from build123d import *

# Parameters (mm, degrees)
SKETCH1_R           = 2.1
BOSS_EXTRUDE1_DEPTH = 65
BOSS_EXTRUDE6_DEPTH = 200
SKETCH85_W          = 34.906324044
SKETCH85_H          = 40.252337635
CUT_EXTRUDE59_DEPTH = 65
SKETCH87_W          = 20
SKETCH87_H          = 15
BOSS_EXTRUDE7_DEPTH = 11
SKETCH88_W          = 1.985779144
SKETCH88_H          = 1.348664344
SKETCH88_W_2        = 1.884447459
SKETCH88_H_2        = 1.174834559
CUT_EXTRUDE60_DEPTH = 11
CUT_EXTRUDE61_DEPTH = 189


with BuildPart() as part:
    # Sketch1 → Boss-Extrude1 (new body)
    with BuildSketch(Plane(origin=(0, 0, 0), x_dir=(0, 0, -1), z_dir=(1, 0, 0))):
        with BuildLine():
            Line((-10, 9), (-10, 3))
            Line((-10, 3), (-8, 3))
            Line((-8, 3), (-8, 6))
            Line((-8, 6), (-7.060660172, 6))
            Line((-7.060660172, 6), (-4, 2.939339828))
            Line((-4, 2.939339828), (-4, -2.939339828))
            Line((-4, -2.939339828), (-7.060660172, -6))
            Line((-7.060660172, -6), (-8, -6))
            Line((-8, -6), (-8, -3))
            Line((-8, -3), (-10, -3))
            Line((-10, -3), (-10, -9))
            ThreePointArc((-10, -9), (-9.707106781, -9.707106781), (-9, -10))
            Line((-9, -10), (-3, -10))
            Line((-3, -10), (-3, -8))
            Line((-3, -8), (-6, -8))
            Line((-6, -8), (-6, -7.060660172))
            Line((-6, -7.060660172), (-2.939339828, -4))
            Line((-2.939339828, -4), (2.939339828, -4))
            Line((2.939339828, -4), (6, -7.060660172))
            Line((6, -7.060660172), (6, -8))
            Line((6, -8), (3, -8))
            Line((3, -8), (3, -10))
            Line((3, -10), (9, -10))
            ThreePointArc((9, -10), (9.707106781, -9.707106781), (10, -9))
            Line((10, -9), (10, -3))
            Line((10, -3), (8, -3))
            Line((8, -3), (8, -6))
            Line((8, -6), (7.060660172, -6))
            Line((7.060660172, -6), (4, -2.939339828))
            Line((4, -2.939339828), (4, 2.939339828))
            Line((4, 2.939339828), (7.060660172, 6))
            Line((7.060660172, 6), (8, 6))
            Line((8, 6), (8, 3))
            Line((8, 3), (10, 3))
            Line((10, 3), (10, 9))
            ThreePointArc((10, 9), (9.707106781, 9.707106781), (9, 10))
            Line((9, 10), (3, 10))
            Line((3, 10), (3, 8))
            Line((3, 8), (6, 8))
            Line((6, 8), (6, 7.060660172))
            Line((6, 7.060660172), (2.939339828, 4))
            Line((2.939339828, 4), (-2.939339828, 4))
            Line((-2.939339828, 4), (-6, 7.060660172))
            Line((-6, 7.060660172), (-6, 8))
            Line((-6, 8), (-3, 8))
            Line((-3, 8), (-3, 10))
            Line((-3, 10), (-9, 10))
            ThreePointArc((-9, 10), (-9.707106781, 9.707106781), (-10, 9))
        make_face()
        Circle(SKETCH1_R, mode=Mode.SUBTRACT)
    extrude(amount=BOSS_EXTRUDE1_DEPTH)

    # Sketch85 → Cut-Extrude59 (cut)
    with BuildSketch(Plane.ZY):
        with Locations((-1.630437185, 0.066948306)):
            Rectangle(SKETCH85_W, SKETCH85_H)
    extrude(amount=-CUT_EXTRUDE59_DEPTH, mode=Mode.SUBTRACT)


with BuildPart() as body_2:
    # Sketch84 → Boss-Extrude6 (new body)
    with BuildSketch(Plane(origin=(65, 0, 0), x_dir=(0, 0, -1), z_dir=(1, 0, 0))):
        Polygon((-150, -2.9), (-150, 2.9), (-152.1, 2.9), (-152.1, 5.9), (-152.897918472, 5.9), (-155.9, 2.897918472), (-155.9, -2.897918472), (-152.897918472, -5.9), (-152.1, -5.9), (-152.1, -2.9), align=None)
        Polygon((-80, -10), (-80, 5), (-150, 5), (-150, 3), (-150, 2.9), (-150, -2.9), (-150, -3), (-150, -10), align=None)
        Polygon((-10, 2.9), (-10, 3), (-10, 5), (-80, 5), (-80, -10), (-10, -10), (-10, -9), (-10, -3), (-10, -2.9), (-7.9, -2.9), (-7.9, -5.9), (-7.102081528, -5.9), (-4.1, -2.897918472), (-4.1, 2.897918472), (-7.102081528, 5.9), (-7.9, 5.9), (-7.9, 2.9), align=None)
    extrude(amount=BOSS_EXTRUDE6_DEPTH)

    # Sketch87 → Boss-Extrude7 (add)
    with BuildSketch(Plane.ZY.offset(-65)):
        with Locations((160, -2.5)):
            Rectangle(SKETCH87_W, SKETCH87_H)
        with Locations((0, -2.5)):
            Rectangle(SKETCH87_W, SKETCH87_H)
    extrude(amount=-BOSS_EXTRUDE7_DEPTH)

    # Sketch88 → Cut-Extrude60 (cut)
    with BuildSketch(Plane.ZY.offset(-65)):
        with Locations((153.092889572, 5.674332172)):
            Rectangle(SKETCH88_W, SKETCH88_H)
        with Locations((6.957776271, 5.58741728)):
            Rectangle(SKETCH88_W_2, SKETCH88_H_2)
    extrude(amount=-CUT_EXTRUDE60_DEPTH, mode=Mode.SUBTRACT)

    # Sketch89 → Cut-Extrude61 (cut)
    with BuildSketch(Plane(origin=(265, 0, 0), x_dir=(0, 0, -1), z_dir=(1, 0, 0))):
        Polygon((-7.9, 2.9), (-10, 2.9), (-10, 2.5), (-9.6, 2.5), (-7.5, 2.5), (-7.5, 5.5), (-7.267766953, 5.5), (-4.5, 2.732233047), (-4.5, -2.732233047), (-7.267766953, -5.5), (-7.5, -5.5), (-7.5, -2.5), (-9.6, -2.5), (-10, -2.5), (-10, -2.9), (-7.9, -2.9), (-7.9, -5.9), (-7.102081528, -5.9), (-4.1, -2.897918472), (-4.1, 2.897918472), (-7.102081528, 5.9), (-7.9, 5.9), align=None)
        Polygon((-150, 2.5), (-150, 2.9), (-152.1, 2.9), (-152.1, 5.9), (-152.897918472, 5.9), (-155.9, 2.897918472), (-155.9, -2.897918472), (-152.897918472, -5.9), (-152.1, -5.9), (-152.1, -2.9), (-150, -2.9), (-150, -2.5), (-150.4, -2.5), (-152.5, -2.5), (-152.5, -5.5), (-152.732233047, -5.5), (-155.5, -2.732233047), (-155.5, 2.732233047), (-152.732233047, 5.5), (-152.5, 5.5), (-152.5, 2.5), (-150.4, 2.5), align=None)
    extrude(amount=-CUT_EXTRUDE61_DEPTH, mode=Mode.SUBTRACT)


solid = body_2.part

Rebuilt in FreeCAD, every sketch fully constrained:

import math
import FreeCAD as App
import Part
import Sketcher
from FreeCAD import Vector
Q = App.Units.Quantity


def add_polygon(sketch, points):
    """Adds a closed chain of lines whose ends are joined by coincident constraints."""
    first, n = sketch.GeometryCount, len(points)
    for a, b in zip(points, points[1:] + points[:1]):
        sketch.addGeometry(Part.LineSegment(App.Vector(*a, 0), App.Vector(*b, 0)), False)
    for i in range(n):
        sketch.addConstraint(Sketcher.Constraint("Coincident", first + i, 2, first + (i + 1) % n, 1))

doc = App.newDocument("Part")
body = doc.addObject("PartDesign::Body", "Body")

# Sketch on YZ plane
sketch1 = doc.addObject("Sketcher::SketchObject", "Sketch")
body.addObject(sketch1)
sketch1.AttachmentSupport = (doc.YZ_Plane, [""])
sketch1.MapMode = "FlatFace"
sketch1.addGeometry([
    Part.LineSegment(Vector(9, 10, 0), Vector(3, 10, 0)),  # 0
    Part.LineSegment(Vector(3, 10, 0), Vector(3, 8, 0)),  # 1
    Part.LineSegment(Vector(3, 8, 0), Vector(6, 8, 0)),  # 2
    Part.LineSegment(Vector(6, 8, 0), Vector(6, 7.06066, 0)),  # 3
    Part.LineSegment(Vector(6, 7.06066, 0), Vector(2.93934, 4, 0)),  # 4
    Part.LineSegment(Vector(2.93934, 4, 0), Vector(-2.93934, 4, 0)),  # 5
    Part.LineSegment(Vector(-2.93934, 4, 0), Vector(-6, 7.06066, 0)),  # 6
    Part.LineSegment(Vector(-6, 7.06066, 0), Vector(-6, 8, 0)),  # 7
    Part.LineSegment(Vector(-6, 8, 0), Vector(-3, 8, 0)),  # 8
    Part.LineSegment(Vector(-3, 8, 0), Vector(-3, 10, 0)),  # 9
    Part.LineSegment(Vector(-3, 10, 0), Vector(-9, 10, 0)),  # 10
    Part.ArcOfCircle(Part.Circle(Vector(-9, 9, 0), Vector(0, 0, 1), 1), math.radians(90), math.radians(180)),  # 11
    Part.LineSegment(Vector(-10, 9, 0), Vector(-10, 3, 0)),  # 12
    Part.LineSegment(Vector(-10, 3, 0), Vector(-8, 3, 0)),  # 13
    Part.LineSegment(Vector(-8, 3, 0), Vector(-8, 6, 0)),  # 14
    Part.LineSegment(Vector(-8, 6, 0), Vector(-7.06066, 6, 0)),  # 15
    Part.LineSegment(Vector(-7.06066, 6, 0), Vector(-4, 2.93934, 0)),  # 16
    Part.LineSegment(Vector(-4, 2.93934, 0), Vector(-4, -2.93934, 0)),  # 17
    Part.LineSegment(Vector(-4, -2.93934, 0), Vector(-7.06066, -6, 0)),  # 18
    Part.LineSegment(Vector(-7.06066, -6, 0), Vector(-8, -6, 0)),  # 19
    Part.LineSegment(Vector(-8, -6, 0), Vector(-8, -3, 0)),  # 20
    Part.LineSegment(Vector(-8, -3, 0), Vector(-10, -3, 0)),  # 21
    Part.LineSegment(Vector(-10, -3, 0), Vector(-10, -9, 0)),  # 22
    Part.ArcOfCircle(Part.Circle(Vector(-9, -9, 0), Vector(0, 0, 1), 1), math.radians(-180), math.radians(-90)),  # 23
    Part.LineSegment(Vector(-9, -10, 0), Vector(-3, -10, 0)),  # 24
    Part.LineSegment(Vector(-3, -10, 0), Vector(-3, -8, 0)),  # 25
    Part.LineSegment(Vector(-3, -8, 0), Vector(-6, -8, 0)),  # 26
    Part.LineSegment(Vector(-6, -8, 0), Vector(-6, -7.06066, 0)),  # 27
    Part.LineSegment(Vector(-6, -7.06066, 0), Vector(-2.93934, -4, 0)),  # 28
    Part.LineSegment(Vector(-2.93934, -4, 0), Vector(2.93934, -4, 0)),  # 29
    Part.LineSegment(Vector(2.93934, -4, 0), Vector(6, -7.06066, 0)),  # 30
    Part.LineSegment(Vector(6, -7.06066, 0), Vector(6, -8, 0)),  # 31
    Part.LineSegment(Vector(6, -8, 0), Vector(3, -8, 0)),  # 32
    Part.LineSegment(Vector(3, -8, 0), Vector(3, -10, 0)),  # 33
    Part.LineSegment(Vector(3, -10, 0), Vector(9, -10, 0)),  # 34
    Part.ArcOfCircle(Part.Circle(Vector(9, -9, 0), Vector(0, 0, 1), 1), math.radians(-90), math.radians(0)),  # 35
    Part.LineSegment(Vector(10, -9, 0), Vector(10, -3, 0)),  # 36
    Part.LineSegment(Vector(10, -3, 0), Vector(8, -3, 0)),  # 37
    Part.LineSegment(Vector(8, -3, 0), Vector(8, -6, 0)),  # 38
    Part.LineSegment(Vector(8, -6, 0), Vector(7.06066, -6, 0)),  # 39
    Part.LineSegment(Vector(7.06066, -6, 0), Vector(4, -2.93934, 0)),  # 40
    Part.LineSegment(Vector(4, -2.93934, 0), Vector(4, 2.93934, 0)),  # 41
    Part.LineSegment(Vector(4, 2.93934, 0), Vector(7.06066, 6, 0)),  # 42
    Part.LineSegment(Vector(7.06066, 6, 0), Vector(8, 6, 0)),  # 43
    Part.LineSegment(Vector(8, 6, 0), Vector(8, 3, 0)),  # 44
    Part.LineSegment(Vector(8, 3, 0), Vector(10, 3, 0)),  # 45
    Part.LineSegment(Vector(10, 3, 0), Vector(10, 9, 0)),  # 46
    Part.ArcOfCircle(Part.Circle(Vector(9, 9, 0), Vector(0, 0, 1), 1), math.radians(0), math.radians(90)),  # 47
    Part.Circle(Vector(0, 0, 0), Vector(0, 0, 1), 2.1),  # 48
], False)
sketch1.addConstraint([
    Sketcher.Constraint("Coincident", 0, 2, 1, 1),
    Sketcher.Constraint("Coincident", 1, 2, 2, 1),
    Sketcher.Constraint("Coincident", 2, 2, 3, 1),
    Sketcher.Constraint("Coincident", 3, 2, 4, 1),
    Sketcher.Constraint("Coincident", 4, 2, 5, 1),
    Sketcher.Constraint("Coincident", 5, 2, 6, 1),
    Sketcher.Constraint("Coincident", 6, 2, 7, 1),
    Sketcher.Constraint("Coincident", 7, 2, 8, 1),
    Sketcher.Constraint("Coincident", 8, 2, 9, 1),
    Sketcher.Constraint("Coincident", 9, 2, 10, 1),
    Sketcher.Constraint("Tangent", 10, 2, 11, 1),
    Sketcher.Constraint("Tangent", 11, 2, 12, 1),
    Sketcher.Constraint("Coincident", 12, 2, 13, 1),
    Sketcher.Constraint("Coincident", 13, 2, 14, 1),
    Sketcher.Constraint("Coincident", 14, 2, 15, 1),
    Sketcher.Constraint("Coincident", 15, 2, 16, 1),
    Sketcher.Constraint("Coincident", 16, 2, 17, 1),
    Sketcher.Constraint("Coincident", 17, 2, 18, 1),
    Sketcher.Constraint("Coincident", 18, 2, 19, 1),
    Sketcher.Constraint("Coincident", 19, 2, 20, 1),
    Sketcher.Constraint("Coincident", 20, 2, 21, 1),
    Sketcher.Constraint("Coincident", 21, 2, 22, 1),
    Sketcher.Constraint("Tangent", 22, 2, 23, 1),
    Sketcher.Constraint("Tangent", 23, 2, 24, 1),
    Sketcher.Constraint("Coincident", 24, 2, 25, 1),
    Sketcher.Constraint("Coincident", 25, 2, 26, 1),
    Sketcher.Constraint("Coincident", 26, 2, 27, 1),
    Sketcher.Constraint("Coincident", 27, 2, 28, 1),
    Sketcher.Constraint("Coincident", 28, 2, 29, 1),
    Sketcher.Constraint("Coincident", 29, 2, 30, 1),
    Sketcher.Constraint("Coincident", 30, 2, 31, 1),
    Sketcher.Constraint("Coincident", 31, 2, 32, 1),
    Sketcher.Constraint("Coincident", 32, 2, 33, 1),
    Sketcher.Constraint("Coincident", 33, 2, 34, 1),
    Sketcher.Constraint("Tangent", 34, 2, 35, 1),
    Sketcher.Constraint("Tangent", 35, 2, 36, 1),
    Sketcher.Constraint("Coincident", 36, 2, 37, 1),
    Sketcher.Constraint("Coincident", 37, 2, 38, 1),
    Sketcher.Constraint("Coincident", 38, 2, 39, 1),
    Sketcher.Constraint("Coincident", 39, 2, 40, 1),
    Sketcher.Constraint("Coincident", 40, 2, 41, 1),
    Sketcher.Constraint("Coincident", 41, 2, 42, 1),
    Sketcher.Constraint("Coincident", 42, 2, 43, 1),
    Sketcher.Constraint("Coincident", 43, 2, 44, 1),
    Sketcher.Constraint("Coincident", 44, 2, 45, 1),
    Sketcher.Constraint("Coincident", 45, 2, 46, 1),
    Sketcher.Constraint("Tangent", 46, 2, 47, 1),
    Sketcher.Constraint("Tangent", 47, 2, 0, 1),
    Sketcher.Constraint("Horizontal", 0),
    Sketcher.Constraint("Vertical", 1),
    Sketcher.Constraint("Horizontal", 2),
    Sketcher.Constraint("Vertical", 3),
    Sketcher.Constraint("Horizontal", 5),
    Sketcher.Constraint("Vertical", 7),
    Sketcher.Constraint("Horizontal", 8),
    Sketcher.Constraint("Vertical", 9),
    Sketcher.Constraint("Horizontal", 10),
    Sketcher.Constraint("Vertical", 12),
    Sketcher.Constraint("Horizontal", 13),
    Sketcher.Constraint("Vertical", 14),
    Sketcher.Constraint("Horizontal", 15),
    Sketcher.Constraint("Vertical", 17),
    Sketcher.Constraint("Horizontal", 19),
    Sketcher.Constraint("Vertical", 20),
    Sketcher.Constraint("Horizontal", 21),
    Sketcher.Constraint("Vertical", 22),
    Sketcher.Constraint("Horizontal", 24),
    Sketcher.Constraint("Vertical", 25),
    Sketcher.Constraint("Horizontal", 26),
    Sketcher.Constraint("Vertical", 27),
    Sketcher.Constraint("Horizontal", 29),
    Sketcher.Constraint("Vertical", 31),
    Sketcher.Constraint("Horizontal", 32),
    Sketcher.Constraint("Vertical", 33),
    Sketcher.Constraint("Horizontal", 34),
    Sketcher.Constraint("Vertical", 36),
    Sketcher.Constraint("Horizontal", 37),
    Sketcher.Constraint("Vertical", 38),
    Sketcher.Constraint("Horizontal", 39),
    Sketcher.Constraint("Vertical", 41),
    Sketcher.Constraint("Horizontal", 43),
    Sketcher.Constraint("Vertical", 44),
    Sketcher.Constraint("Horizontal", 45),
    Sketcher.Constraint("Vertical", 46),
    Sketcher.Constraint("Coincident", 48, 3, -1, 1),
    Sketcher.Constraint("Equal", 11, 23),
    Sketcher.Constraint("Equal", 23, 35),
    Sketcher.Constraint("Equal", 35, 47),
    Sketcher.Constraint("Symmetric", 11, 3, 35, 3, -1, 1),
    Sketcher.Constraint("Symmetric", 23, 3, 47, 3, -1, 1),
    Sketcher.Constraint("Symmetric", 1, 2, 25, 2, -1, 1),
    Sketcher.Constraint("Symmetric", 3, 2, 27, 2, -1, 1),
    Sketcher.Constraint("Symmetric", 4, 2, 28, 2, -1, 1),
    Sketcher.Constraint("Symmetric", 6, 2, 30, 2, -1, 1),
    Sketcher.Constraint("Symmetric", 8, 2, 32, 2, -1, 1),
    Sketcher.Constraint("Symmetric", 13, 2, 37, 2, -1, 1),
    Sketcher.Constraint("Symmetric", 15, 2, 39, 2, -1, 1),
    Sketcher.Constraint("Symmetric", 16, 2, 40, 2, -1, 1),
    Sketcher.Constraint("Symmetric", 18, 2, 42, 2, -1, 1),
    Sketcher.Constraint("Symmetric", 20, 2, 44, 2, -1, 1),
    Sketcher.Constraint("Symmetric", 23, 3, 35, 3, -2),
    Sketcher.Constraint("Symmetric", 3, 2, 6, 2, -2),
    Sketcher.Constraint("Symmetric", 1, 2, 8, 2, -2),
    Sketcher.Constraint("Symmetric", 20, 2, 37, 2, -2),
    Sketcher.Constraint("Symmetric", 18, 2, 39, 2, -2),
    Sketcher.Constraint("Perpendicular", 4, 6),
    Sketcher.Constraint("Parallel", 6, 16),
    Sketcher.Constraint("Perpendicular", 16, 18),
    Sketcher.Constraint("Perpendicular", 28, 30),
    Sketcher.Constraint("Perpendicular", 40, 42),
    Sketcher.Constraint("Horizontal", 17, 2, 40, 2),
    Sketcher.Constraint("Equal", 45, 1),
    Sketcher.Constraint("Equal", 43, 3),
    Sketcher.Constraint("Equal", 34, 12),
    Sketcher.Constraint("Equal", 32, 14),
    Sketcher.Constraint("Equal", 29, 17),
    Sketcher.Constraint("Equal", 6, 16),
    Sketcher.Constraint("Radius", 11, Q("1 mm")),
    Sketcher.Constraint("Diameter", 48, Q("4.2 mm")),
    Sketcher.Constraint("DistanceX", 0, 2, 0, 1, Q("6 mm")),
    Sketcher.Constraint("DistanceX", 2, 1, 2, 2, Q("3 mm")),
    Sketcher.Constraint("DistanceX", 13, 1, 13, 2, Q("2 mm")),
    Sketcher.Constraint("DistanceX", 11, 3, -1, 1, Q("9 mm")),
    Sketcher.Constraint("DistanceY", -1, 1, 4, 2, Q("4 mm")),
    Sketcher.Constraint("DistanceX", 5, 2, 5, 1, Q("5.87868 mm")),
])
pad1 = doc.addObject("PartDesign::Pad", "Pad")
body.addObject(pad1)
pad1.Profile = sketch1
pad1.Length = 65

# Sketch on YZ plane
sketch2 = doc.addObject("Sketcher::SketchObject", "Sketch001")
body.addObject(sketch2)
sketch2.AttachmentSupport = (doc.YZ_Plane, [""])
sketch2.MapMode = "FlatFace"
add_polygon(sketch2, [(20.193117, -19.083599), (-20.059221, -19.083599), (-20.059221, 15.822725), (20.193117, 15.822725)])  # lines 0-3
sketch2.addConstraint([
    Sketcher.Constraint("Horizontal", 0),
    Sketcher.Constraint("Vertical", 1),
    Sketcher.Constraint("Horizontal", 2),
    Sketcher.Constraint("Vertical", 3),
    Sketcher.Constraint("DistanceY", 0, 2, -1, 1, Q("19.083599 mm")),
    Sketcher.Constraint("DistanceX", 0, 2, 0, 1, Q("40.252338 mm")),
    Sketcher.Constraint("DistanceY", 1, 1, 1, 2, Q("34.906324 mm")),
    Sketcher.Constraint("DistanceX", 0, 2, -1, 1, Q("20.059221 mm")),
])
pocket1 = doc.addObject("PartDesign::Pocket", "Pocket")
body.addObject(pocket1)
pocket1.Profile = sketch2
pocket1.Length = 65
pocket1.Reversed = True
body2 = doc.addObject("PartDesign::Body", "Body001")

# Sketch on YZ plane
sketch3 = doc.addObject("Sketcher::SketchObject", "Sketch002")
body2.addObject(sketch3)
sketch3.AttachmentSupport = (doc.getObject("YZ_Plane001"), [""])
sketch3.MapMode = "FlatFace"
sketch3.AttachmentOffset = App.Placement(Vector(0, 0, 65), App.Rotation())
add_polygon(sketch3, [(2.9, 150), (2.9, 152.1), (5.9, 152.1), (5.9, 152.897918), (2.897918, 155.9), (-2.897918, 155.9), (-5.9, 152.897918), (-5.9, 152.1), (-2.9, 152.1), (-2.9, 150), (-10, 150), (-10, 10), (-2.9, 10), (-2.9, 7.9), (-5.9, 7.9), (-5.9, 7.102082), (-2.897918, 4.1), (2.897918, 4.1), (5.9, 7.102082), (5.9, 7.9), (2.9, 7.9), (2.9, 10), (5, 10), (5, 150)])  # lines 0-23
sketch3.addConstraint([
    Sketcher.Constraint("Vertical", 0),
    Sketcher.Constraint("Horizontal", 1),
    Sketcher.Constraint("Vertical", 2),
    Sketcher.Constraint("Horizontal", 4),
    Sketcher.Constraint("Vertical", 6),
    Sketcher.Constraint("Horizontal", 7),
    Sketcher.Constraint("Vertical", 8),
    Sketcher.Constraint("Horizontal", 9),
    Sketcher.Constraint("Vertical", 10),
    Sketcher.Constraint("Horizontal", 11),
    Sketcher.Constraint("Vertical", 12),
    Sketcher.Constraint("Horizontal", 13),
    Sketcher.Constraint("Vertical", 14),
    Sketcher.Constraint("Horizontal", 16),
    Sketcher.Constraint("Vertical", 18),
    Sketcher.Constraint("Horizontal", 19),
    Sketcher.Constraint("Vertical", 20),
    Sketcher.Constraint("Horizontal", 21),
    Sketcher.Constraint("Vertical", 22),
    Sketcher.Constraint("Horizontal", 23),
    Sketcher.Constraint("Symmetric", 2, 2, 5, 2, -2),
    Sketcher.Constraint("Symmetric", 0, 2, 7, 2, -2),
    Sketcher.Constraint("Symmetric", 14, 2, 17, 2, -2),
    Sketcher.Constraint("Symmetric", 12, 2, 19, 2, -2),
    Sketcher.Constraint("Perpendicular", 3, 5),
    Sketcher.Constraint("Perpendicular", 5, 15),
    Sketcher.Constraint("Perpendicular", 15, 17),
    Sketcher.Constraint("Horizontal", 11, 2, 20, 2),
    Sketcher.Constraint("Horizontal", 9, 2, 22, 2),
    Sketcher.Constraint("Vertical", 8, 2, 11, 2),
    Sketcher.Constraint("Vertical", 6, 2, 13, 2),
    Sketcher.Constraint("Vertical", 4, 2, 15, 2),
    Sketcher.Constraint("Vertical", 3, 2, 16, 2),
    Sketcher.Constraint("Equal", 23, 0),
    Sketcher.Constraint("Equal", 8, 12),
    Sketcher.Constraint("Equal", 6, 14),
    Sketcher.Constraint("DistanceX", 1, 1, 1, 2, Q("3 mm")),
    Sketcher.Constraint("DistanceY", 10, 2, 10, 1, Q("140 mm")),
    Sketcher.Constraint("DistanceX", 9, 2, 9, 1, Q("7.1 mm")),
    Sketcher.Constraint("DistanceX", 21, 1, 21, 2, Q("2.1 mm")),
    Sketcher.Constraint("DistanceY", -1, 1, 8, 2, Q("150 mm")),
    Sketcher.Constraint("DistanceX", 9, 2, -1, 1, Q("10 mm")),
    Sketcher.Constraint("DistanceY", -1, 1, 3, 2, Q("155.9 mm")),
    Sketcher.Constraint("DistanceY", 2, 1, 2, 2, Q("0.797918 mm")),
])
pad2 = doc.addObject("PartDesign::Pad", "Pad001")
body2.addObject(pad2)
pad2.Profile = sketch3
pad2.Length = 200

# Sketch on YZ plane
sketch4 = doc.addObject("Sketcher::SketchObject", "Sketch003")
body2.addObject(sketch4)
sketch4.AttachmentSupport = (doc.getObject("YZ_Plane001"), [""])
sketch4.MapMode = "FlatFace"
sketch4.AttachmentOffset = App.Placement(Vector(0, 0, 65), App.Rotation())
add_polygon(sketch4, [(5, 150), (-10, 150), (-10, 170), (5, 170)])  # lines 0-3
add_polygon(sketch4, [(5, -10), (-10, -10), (-10, 10), (5, 10)])  # lines 4-7
sketch4.addConstraint([
    Sketcher.Constraint("Horizontal", 0),
    Sketcher.Constraint("Vertical", 1),
    Sketcher.Constraint("Horizontal", 2),
    Sketcher.Constraint("Vertical", 3),
    Sketcher.Constraint("Horizontal", 4),
    Sketcher.Constraint("Vertical", 5),
    Sketcher.Constraint("Horizontal", 6),
    Sketcher.Constraint("Vertical", 7),
    Sketcher.Constraint("Vertical", 1, 2, 4, 2),
    Sketcher.Constraint("Vertical", 3, 2, 6, 2),
    Sketcher.Constraint("Equal", 3, 5),
    Sketcher.Constraint("DistanceX", 0, 2, 0, 1, Q("15 mm")),
    Sketcher.Constraint("DistanceY", 1, 1, 1, 2, Q("20 mm")),
    Sketcher.Constraint("DistanceX", 0, 2, -1, 1, Q("10 mm")),
    Sketcher.Constraint("DistanceY", -1, 1, 0, 2, Q("150 mm")),
    Sketcher.Constraint("DistanceY", 4, 2, -1, 1, Q("10 mm")),
])
pad3 = doc.addObject("PartDesign::Pad", "Pad002")
body2.addObject(pad3)
pad3.Profile = sketch4
pad3.Length = 11

# Sketch on YZ plane
sketch5 = doc.addObject("Sketcher::SketchObject", "Sketch004")
body2.addObject(sketch5)
sketch5.AttachmentSupport = (doc.getObject("YZ_Plane001"), [""])
sketch5.MapMode = "FlatFace"
sketch5.AttachmentOffset = App.Placement(Vector(0, 0, 65), App.Rotation())
add_polygon(sketch5, [(6.348664, 152.1), (5, 152.1), (5, 154.085779), (6.348664, 154.085779)])  # lines 0-3
add_polygon(sketch5, [(6.174835, 6.015553), (5, 6.015553), (5, 7.9), (6.174835, 7.9)])  # lines 4-7
sketch5.addConstraint([
    Sketcher.Constraint("Horizontal", 0),
    Sketcher.Constraint("Vertical", 1),
    Sketcher.Constraint("Horizontal", 2),
    Sketcher.Constraint("Vertical", 3),
    Sketcher.Constraint("Horizontal", 4),
    Sketcher.Constraint("Vertical", 5),
    Sketcher.Constraint("Horizontal", 6),
    Sketcher.Constraint("Vertical", 7),
    Sketcher.Constraint("Vertical", 1, 2, 4, 2),
    Sketcher.Constraint("DistanceX", -1, 1, 0, 2, Q("5 mm")),
    Sketcher.Constraint("DistanceY", -1, 1, 0, 2, Q("152.1 mm")),
    Sketcher.Constraint("DistanceY", -1, 1, 5, 2, Q("7.9 mm")),
    Sketcher.Constraint("DistanceY", 1, 1, 1, 2, Q("1.985779 mm")),
    Sketcher.Constraint("DistanceX", 0, 2, 0, 1, Q("1.348664 mm")),
    Sketcher.Constraint("DistanceX", 4, 2, 4, 1, Q("1.174835 mm")),
    Sketcher.Constraint("DistanceY", 5, 1, 5, 2, Q("1.884447 mm")),
])
pocket2 = doc.addObject("PartDesign::Pocket", "Pocket001")
body2.addObject(pocket2)
pocket2.Profile = sketch5
pocket2.Length = 11
pocket2.Reversed = True

# Sketch on YZ plane
sketch6 = doc.addObject("Sketcher::SketchObject", "Sketch005")
body2.addObject(sketch6)
sketch6.AttachmentSupport = (doc.getObject("YZ_Plane001"), [""])
sketch6.MapMode = "FlatFace"
sketch6.AttachmentOffset = App.Placement(Vector(0, 0, 265), App.Rotation())
add_polygon(sketch6, [(2.9, 7.9), (2.9, 10), (2.5, 10), (2.5, 7.5), (5.5, 7.5), (5.5, 7.267767), (2.732233, 4.5), (-2.732233, 4.5), (-5.5, 7.267767), (-5.5, 7.5), (-2.5, 7.5), (-2.5, 10), (-2.9, 10), (-2.9, 7.9), (-5.9, 7.9), (-5.9, 7.102082), (-2.897918, 4.1), (2.897918, 4.1), (5.9, 7.102082), (5.9, 7.9)])  # lines 0-19
add_polygon(sketch6, [(2.5, 150), (2.9, 150), (2.9, 152.1), (5.9, 152.1), (5.9, 152.897918), (2.897918, 155.9), (-2.897918, 155.9), (-5.9, 152.897918), (-5.9, 152.1), (-2.9, 152.1), (-2.9, 150), (-2.5, 150), (-2.5, 152.5), (-5.5, 152.5), (-5.5, 152.732233), (-2.732233, 155.5), (2.732233, 155.5), (5.5, 152.732233), (5.5, 152.5), (2.5, 152.5)])  # lines 20-39
sketch6.addConstraint([
    Sketcher.Constraint("Vertical", 0),
    Sketcher.Constraint("Horizontal", 1),
    Sketcher.Constraint("Vertical", 2),
    Sketcher.Constraint("Horizontal", 3),
    Sketcher.Constraint("Vertical", 4),
    Sketcher.Constraint("Horizontal", 6),
    Sketcher.Constraint("Vertical", 8),
    Sketcher.Constraint("Horizontal", 9),
    Sketcher.Constraint("Vertical", 10),
    Sketcher.Constraint("Horizontal", 11),
    Sketcher.Constraint("Vertical", 12),
    Sketcher.Constraint("Horizontal", 13),
    Sketcher.Constraint("Vertical", 14),
    Sketcher.Constraint("Horizontal", 16),
    Sketcher.Constraint("Vertical", 18),
    Sketcher.Constraint("Horizontal", 19),
    Sketcher.Constraint("Horizontal", 20),
    Sketcher.Constraint("Vertical", 21),
    Sketcher.Constraint("Horizontal", 22),
    Sketcher.Constraint("Vertical", 23),
    Sketcher.Constraint("Horizontal", 25),
    Sketcher.Constraint("Vertical", 27),
    Sketcher.Constraint("Horizontal", 28),
    Sketcher.Constraint("Vertical", 29),
    Sketcher.Constraint("Horizontal", 30),
    Sketcher.Constraint("Vertical", 31),
    Sketcher.Constraint("Horizontal", 32),
    Sketcher.Constraint("Vertical", 33),
    Sketcher.Constraint("Horizontal", 35),
    Sketcher.Constraint("Vertical", 37),
    Sketcher.Constraint("Horizontal", 38),
    Sketcher.Constraint("Vertical", 39),
    Sketcher.Constraint("Symmetric", 4, 2, 7, 2, -2),
    Sketcher.Constraint("Symmetric", 2, 2, 9, 2, -2),
    Sketcher.Constraint("Symmetric", 0, 2, 11, 2, -2),
    Sketcher.Constraint("Symmetric", 14, 2, 17, 2, -2),
    Sketcher.Constraint("Symmetric", 23, 2, 26, 2, -2),
    Sketcher.Constraint("Symmetric", 21, 2, 28, 2, -2),
    Sketcher.Constraint("Symmetric", 33, 2, 36, 2, -2),
    Sketcher.Constraint("Symmetric", 31, 2, 38, 2, -2),
    Sketcher.Constraint("Perpendicular", 5, 7),
    Sketcher.Constraint("Parallel", 7, 15),
    Sketcher.Constraint("Perpendicular", 15, 17),
    Sketcher.Constraint("Perpendicular", 17, 24),
    Sketcher.Constraint("Perpendicular", 24, 26),
    Sketcher.Constraint("Parallel", 26, 34),
    Sketcher.Constraint("Perpendicular", 34, 36),
    Sketcher.Constraint("Horizontal", 13, 2, 18, 2),
    Sketcher.Constraint("Horizontal", 20, 2, 29, 2),
    Sketcher.Constraint("Vertical", 19, 2, 20, 2),
    Sketcher.Constraint("Vertical", 18, 2, 22, 2),
    Sketcher.Constraint("Vertical", 16, 2, 24, 2),
    Sketcher.Constraint("Vertical", 15, 2, 25, 2),
    Sketcher.Constraint("Vertical", 10, 2, 30, 2),
    Sketcher.Constraint("Vertical", 8, 2, 32, 2),
    Sketcher.Constraint("Vertical", 6, 2, 34, 2),
    Sketcher.Constraint("Equal", 9, 13),
    Sketcher.Constraint("Equal", 12, 21),
    Sketcher.Constraint("Equal", 18, 23),
    Sketcher.Constraint("Equal", 10, 31),
    Sketcher.Constraint("Equal", 8, 33),
    Sketcher.Constraint("DistanceX", 3, 1, 3, 2, Q("3 mm")),
    Sketcher.Constraint("DistanceX", 1, 2, 1, 1, Q("0.4 mm")),
    Sketcher.Constraint("DistanceY", 0, 1, 0, 2, Q("2.1 mm")),
    Sketcher.Constraint("DistanceY", 2, 2, 2, 1, Q("2.5 mm")),
    Sketcher.Constraint("DistanceY", -1, 1, 0, 2, Q("10 mm")),
    Sketcher.Constraint("DistanceY", -1, 1, 20, 2, Q("150 mm")),
    Sketcher.Constraint("DistanceY", 5, 2, 2, 2, Q("3 mm")),
    Sketcher.Constraint("DistanceX", 7, 2, 2, 2, Q("8 mm")),
    Sketcher.Constraint("DistanceY", -1, 1, 15, 2, Q("4.1 mm")),
    Sketcher.Constraint("DistanceY", 14, 2, 14, 1, Q("0.797918 mm")),
    Sketcher.Constraint("DistanceX", 6, 2, 6, 1, Q("5.464466 mm")),
])
pocket3 = doc.addObject("PartDesign::Pocket", "Pocket002")
body2.addObject(pocket3)
pocket3.Profile = sketch6
pocket3.Length = 189

doc.recompute()
